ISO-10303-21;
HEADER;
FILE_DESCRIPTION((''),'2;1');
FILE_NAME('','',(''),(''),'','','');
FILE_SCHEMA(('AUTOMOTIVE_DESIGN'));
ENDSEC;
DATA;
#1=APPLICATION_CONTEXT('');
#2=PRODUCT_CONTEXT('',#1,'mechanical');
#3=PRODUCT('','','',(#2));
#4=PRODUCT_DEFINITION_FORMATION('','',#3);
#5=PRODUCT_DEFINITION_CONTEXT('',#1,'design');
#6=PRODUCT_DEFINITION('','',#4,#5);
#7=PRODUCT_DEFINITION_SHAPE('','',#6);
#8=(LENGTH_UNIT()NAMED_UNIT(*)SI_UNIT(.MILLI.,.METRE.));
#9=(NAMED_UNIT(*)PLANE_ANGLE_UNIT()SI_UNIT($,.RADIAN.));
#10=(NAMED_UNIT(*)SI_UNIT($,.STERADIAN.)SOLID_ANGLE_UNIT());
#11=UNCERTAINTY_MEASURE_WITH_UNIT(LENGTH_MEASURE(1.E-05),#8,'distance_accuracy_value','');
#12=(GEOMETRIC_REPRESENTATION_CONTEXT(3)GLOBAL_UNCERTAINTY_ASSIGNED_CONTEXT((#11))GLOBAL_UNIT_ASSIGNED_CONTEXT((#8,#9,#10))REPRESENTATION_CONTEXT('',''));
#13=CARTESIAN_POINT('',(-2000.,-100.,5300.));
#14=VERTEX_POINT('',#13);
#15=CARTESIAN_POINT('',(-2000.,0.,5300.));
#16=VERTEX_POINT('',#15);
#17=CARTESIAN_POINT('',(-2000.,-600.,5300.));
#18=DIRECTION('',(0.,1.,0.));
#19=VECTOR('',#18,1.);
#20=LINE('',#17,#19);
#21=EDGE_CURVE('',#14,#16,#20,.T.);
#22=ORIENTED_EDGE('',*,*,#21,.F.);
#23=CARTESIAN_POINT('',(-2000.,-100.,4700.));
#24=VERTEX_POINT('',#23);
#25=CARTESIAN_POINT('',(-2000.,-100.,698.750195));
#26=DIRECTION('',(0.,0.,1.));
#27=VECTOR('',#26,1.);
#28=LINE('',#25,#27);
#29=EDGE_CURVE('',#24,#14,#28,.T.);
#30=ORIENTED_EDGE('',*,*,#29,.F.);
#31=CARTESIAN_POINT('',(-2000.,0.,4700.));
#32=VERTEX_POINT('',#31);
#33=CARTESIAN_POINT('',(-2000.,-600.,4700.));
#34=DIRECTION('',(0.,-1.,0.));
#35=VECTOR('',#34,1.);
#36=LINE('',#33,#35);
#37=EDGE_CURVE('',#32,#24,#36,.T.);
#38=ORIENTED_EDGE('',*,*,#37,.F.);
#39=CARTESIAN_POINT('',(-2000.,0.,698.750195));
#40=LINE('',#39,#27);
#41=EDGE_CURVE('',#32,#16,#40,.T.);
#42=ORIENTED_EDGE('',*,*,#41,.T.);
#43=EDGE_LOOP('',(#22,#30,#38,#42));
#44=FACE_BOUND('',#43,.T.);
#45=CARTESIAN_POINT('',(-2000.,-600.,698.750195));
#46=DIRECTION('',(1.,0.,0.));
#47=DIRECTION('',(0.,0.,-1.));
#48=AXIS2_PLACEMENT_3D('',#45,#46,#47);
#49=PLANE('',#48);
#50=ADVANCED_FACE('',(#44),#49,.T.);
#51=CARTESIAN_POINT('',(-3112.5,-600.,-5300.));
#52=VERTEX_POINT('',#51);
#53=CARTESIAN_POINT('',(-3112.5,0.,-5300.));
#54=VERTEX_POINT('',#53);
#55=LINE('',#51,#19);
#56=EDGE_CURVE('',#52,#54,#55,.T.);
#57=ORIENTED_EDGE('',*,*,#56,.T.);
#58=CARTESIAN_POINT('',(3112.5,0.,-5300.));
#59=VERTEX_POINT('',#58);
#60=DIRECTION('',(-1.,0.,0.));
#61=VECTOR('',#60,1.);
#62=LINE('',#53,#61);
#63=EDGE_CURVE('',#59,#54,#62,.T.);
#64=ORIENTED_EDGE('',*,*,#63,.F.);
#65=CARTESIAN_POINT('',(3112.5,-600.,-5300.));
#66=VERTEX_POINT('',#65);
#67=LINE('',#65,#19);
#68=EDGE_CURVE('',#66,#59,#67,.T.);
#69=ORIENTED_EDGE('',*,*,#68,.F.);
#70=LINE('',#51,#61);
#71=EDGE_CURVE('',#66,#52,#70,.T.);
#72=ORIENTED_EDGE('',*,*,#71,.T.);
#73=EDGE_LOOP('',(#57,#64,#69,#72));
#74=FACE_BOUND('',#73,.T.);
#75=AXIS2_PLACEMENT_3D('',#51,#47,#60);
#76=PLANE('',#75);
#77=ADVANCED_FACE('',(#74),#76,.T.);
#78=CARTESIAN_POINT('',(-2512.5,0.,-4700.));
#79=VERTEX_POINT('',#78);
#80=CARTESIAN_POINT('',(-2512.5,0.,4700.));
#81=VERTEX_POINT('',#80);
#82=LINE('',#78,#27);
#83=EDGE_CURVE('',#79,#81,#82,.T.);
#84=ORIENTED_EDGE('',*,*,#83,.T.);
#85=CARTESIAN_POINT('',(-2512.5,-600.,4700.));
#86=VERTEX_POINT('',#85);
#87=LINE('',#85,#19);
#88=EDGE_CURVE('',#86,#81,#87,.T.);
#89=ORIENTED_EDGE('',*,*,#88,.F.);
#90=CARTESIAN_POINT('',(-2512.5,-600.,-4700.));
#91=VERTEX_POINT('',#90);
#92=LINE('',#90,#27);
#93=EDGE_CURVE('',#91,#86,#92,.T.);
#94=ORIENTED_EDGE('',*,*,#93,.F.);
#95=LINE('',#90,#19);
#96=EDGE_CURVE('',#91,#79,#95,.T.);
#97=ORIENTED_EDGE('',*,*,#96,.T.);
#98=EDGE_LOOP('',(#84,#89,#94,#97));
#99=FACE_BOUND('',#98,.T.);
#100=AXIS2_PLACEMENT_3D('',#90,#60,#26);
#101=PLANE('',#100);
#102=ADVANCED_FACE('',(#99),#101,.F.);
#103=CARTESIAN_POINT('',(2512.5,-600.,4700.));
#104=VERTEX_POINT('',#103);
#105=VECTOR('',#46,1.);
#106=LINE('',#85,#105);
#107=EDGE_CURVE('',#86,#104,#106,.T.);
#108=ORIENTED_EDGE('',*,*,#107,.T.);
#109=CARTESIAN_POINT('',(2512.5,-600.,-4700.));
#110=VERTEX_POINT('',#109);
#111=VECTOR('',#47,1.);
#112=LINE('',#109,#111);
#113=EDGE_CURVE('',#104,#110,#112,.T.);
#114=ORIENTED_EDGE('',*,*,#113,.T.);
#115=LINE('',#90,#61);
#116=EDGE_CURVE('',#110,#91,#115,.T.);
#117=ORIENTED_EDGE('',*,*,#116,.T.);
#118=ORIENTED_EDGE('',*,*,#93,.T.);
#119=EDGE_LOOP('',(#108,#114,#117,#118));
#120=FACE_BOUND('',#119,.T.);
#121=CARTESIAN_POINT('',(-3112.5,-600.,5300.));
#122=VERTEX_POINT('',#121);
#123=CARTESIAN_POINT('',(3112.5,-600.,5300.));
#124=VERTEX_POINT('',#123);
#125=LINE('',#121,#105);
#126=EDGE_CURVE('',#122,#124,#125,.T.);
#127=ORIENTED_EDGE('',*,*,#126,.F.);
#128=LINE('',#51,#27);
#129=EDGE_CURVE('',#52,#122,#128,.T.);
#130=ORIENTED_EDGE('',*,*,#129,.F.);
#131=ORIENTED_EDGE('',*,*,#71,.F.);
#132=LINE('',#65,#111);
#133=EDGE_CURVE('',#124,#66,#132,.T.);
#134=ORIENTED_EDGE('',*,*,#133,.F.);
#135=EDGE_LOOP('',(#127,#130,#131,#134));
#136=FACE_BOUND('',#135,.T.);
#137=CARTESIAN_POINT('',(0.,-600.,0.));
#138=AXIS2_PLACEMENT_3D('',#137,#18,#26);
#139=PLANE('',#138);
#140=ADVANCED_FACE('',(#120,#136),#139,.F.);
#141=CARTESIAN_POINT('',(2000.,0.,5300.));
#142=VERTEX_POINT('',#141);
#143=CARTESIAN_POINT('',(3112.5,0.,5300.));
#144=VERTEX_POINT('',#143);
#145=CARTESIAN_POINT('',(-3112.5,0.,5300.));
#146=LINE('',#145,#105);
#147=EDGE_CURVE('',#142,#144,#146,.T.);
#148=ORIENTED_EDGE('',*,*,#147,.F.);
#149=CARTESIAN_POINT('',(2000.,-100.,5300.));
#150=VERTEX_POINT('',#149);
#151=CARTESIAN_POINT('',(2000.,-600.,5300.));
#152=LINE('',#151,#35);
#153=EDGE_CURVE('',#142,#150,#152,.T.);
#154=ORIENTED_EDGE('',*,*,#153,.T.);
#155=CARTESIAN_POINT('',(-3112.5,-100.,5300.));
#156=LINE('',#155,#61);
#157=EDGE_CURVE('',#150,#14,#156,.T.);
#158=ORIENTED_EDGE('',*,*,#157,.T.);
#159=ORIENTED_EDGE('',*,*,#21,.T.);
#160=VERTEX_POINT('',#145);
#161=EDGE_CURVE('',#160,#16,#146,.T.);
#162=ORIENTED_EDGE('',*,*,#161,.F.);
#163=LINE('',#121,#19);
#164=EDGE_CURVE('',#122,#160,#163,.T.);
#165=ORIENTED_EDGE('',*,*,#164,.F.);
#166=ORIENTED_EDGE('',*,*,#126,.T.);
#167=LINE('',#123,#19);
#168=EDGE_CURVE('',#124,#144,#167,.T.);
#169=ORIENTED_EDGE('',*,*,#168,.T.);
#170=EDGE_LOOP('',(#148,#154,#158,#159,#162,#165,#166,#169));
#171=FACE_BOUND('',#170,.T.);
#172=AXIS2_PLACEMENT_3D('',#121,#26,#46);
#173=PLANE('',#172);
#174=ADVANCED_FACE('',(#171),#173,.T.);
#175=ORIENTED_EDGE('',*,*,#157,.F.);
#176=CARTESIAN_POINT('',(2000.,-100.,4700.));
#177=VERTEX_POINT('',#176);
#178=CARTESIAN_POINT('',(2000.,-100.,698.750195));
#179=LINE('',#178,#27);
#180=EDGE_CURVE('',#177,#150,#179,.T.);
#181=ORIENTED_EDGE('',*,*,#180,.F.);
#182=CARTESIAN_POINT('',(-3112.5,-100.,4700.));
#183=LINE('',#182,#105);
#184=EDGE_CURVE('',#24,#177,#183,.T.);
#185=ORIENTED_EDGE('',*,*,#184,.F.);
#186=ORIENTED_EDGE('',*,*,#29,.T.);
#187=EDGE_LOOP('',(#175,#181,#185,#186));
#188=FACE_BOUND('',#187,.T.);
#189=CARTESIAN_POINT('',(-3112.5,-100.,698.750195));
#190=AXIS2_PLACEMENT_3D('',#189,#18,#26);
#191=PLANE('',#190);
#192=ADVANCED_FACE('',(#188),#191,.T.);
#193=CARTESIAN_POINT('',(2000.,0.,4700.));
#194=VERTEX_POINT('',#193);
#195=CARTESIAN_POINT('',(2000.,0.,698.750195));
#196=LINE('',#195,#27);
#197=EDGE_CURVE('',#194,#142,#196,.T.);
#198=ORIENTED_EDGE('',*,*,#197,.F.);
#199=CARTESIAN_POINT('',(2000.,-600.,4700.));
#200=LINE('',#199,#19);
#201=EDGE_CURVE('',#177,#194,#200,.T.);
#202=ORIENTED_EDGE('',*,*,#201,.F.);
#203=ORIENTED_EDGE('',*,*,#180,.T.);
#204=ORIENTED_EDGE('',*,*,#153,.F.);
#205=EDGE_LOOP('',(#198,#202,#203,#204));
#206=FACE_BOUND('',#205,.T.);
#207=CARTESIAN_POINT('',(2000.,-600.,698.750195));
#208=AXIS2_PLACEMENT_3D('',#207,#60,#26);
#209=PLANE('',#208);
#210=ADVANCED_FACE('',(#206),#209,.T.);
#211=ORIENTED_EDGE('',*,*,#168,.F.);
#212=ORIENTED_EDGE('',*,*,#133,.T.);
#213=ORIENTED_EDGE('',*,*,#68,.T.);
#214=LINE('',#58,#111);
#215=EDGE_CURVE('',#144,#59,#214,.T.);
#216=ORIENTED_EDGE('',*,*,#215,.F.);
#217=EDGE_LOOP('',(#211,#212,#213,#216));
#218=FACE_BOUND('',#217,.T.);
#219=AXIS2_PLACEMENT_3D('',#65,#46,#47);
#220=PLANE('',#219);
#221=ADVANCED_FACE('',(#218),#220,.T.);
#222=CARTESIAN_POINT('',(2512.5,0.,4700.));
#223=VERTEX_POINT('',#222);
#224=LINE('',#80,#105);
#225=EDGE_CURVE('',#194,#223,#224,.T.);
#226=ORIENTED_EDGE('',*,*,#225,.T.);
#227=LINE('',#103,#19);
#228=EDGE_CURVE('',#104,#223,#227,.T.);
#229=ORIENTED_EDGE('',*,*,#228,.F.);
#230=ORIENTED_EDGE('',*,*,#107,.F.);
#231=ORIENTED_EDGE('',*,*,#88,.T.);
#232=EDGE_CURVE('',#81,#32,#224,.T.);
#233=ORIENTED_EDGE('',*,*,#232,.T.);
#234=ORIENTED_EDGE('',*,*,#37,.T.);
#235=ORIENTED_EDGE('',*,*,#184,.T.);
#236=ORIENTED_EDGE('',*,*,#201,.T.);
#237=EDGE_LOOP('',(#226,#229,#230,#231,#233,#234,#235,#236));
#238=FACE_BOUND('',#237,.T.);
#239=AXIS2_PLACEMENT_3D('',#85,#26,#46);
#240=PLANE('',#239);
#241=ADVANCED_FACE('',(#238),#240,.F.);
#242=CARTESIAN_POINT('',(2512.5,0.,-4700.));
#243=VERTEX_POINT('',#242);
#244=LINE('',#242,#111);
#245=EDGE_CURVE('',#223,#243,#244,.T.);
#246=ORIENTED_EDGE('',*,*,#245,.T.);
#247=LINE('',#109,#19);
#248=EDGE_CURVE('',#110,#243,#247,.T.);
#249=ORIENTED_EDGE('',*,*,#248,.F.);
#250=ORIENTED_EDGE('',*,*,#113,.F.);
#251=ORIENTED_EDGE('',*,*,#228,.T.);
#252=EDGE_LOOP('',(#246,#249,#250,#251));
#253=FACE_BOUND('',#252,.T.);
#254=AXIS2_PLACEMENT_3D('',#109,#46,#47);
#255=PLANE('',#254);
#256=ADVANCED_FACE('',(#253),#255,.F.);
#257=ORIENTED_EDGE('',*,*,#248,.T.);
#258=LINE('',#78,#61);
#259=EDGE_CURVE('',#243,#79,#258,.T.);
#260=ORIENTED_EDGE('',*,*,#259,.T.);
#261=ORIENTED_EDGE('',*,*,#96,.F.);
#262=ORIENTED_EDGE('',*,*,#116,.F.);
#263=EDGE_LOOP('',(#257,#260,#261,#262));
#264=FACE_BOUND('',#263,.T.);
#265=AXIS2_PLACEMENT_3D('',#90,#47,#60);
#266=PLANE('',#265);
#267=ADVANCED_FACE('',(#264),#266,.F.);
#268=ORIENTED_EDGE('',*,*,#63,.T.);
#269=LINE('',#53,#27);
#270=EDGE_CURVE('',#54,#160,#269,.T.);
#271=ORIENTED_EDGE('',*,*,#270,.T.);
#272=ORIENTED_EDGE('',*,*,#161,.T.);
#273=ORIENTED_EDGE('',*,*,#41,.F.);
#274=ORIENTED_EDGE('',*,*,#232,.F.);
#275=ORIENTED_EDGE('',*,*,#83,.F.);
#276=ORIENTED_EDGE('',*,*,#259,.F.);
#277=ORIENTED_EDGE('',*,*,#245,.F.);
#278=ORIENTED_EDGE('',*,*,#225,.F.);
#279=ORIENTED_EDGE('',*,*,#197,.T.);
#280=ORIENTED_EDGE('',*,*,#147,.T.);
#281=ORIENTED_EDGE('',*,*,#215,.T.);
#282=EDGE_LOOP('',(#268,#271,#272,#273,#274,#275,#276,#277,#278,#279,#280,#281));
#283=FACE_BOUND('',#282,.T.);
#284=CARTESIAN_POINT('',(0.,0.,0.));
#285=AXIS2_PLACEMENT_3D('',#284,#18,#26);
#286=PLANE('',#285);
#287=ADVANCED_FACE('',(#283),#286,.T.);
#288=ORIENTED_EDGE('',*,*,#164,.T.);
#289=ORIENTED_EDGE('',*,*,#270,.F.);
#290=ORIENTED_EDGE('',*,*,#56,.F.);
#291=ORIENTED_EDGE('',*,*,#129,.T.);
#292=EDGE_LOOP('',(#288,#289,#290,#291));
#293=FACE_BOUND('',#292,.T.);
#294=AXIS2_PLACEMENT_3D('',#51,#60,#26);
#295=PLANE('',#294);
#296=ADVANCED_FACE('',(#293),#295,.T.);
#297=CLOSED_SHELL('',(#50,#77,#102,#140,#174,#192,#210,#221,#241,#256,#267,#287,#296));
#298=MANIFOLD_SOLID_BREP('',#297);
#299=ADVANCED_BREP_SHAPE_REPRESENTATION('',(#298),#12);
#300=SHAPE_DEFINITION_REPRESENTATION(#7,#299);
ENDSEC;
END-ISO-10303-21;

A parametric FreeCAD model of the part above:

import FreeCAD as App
import Part
import Sketcher

V = App.Vector


def add_polygon(sketch, points):
    """Adds a closed chain of lines whose ends are joined by coincident constraints."""
    first, n = sketch.GeometryCount, len(points)
    for a, b in zip(points, points[1:] + points[:1]):
        sketch.addGeometry(Part.LineSegment(App.Vector(*a, 0), App.Vector(*b, 0)), False)
    for i in range(n):
        sketch.addConstraint(Sketcher.Constraint("Coincident", first + i, 2, first + (i + 1) % n, 1))

doc = App.newDocument("Part")
body = doc.addObject("PartDesign::Body", "Body")

# Sketch on XZ plane
sketch1 = body.newObject("Sketcher::SketchObject", "Sketch")
sketch1.AttachmentSupport = (doc.getObject("XZ_Plane"), [""])
sketch1.MapMode = "FlatFace"
add_polygon(sketch1, [(-3112.5, -5300), (-3112.5, 5300), (3112.5, 5300), (3112.5, -5300)])  # lines 0-3
add_polygon(sketch1, [(2512.5, 4700), (-2512.5, 4700), (-2512.5, -4700), (2512.5, -4700)])  # lines 4-7
sketch1.addConstraint([
    Sketcher.Constraint("Vertical", 0),
    Sketcher.Constraint("Horizontal", 1),
    Sketcher.Constraint("Vertical", 2),
    Sketcher.Constraint("Horizontal", 3),
    Sketcher.Constraint("Horizontal", 4),
    Sketcher.Constraint("Vertical", 5),
    Sketcher.Constraint("Horizontal", 6),
    Sketcher.Constraint("Vertical", 7),
    Sketcher.Constraint("Symmetric", 0, 2, 2, 2, -1, 1),
    Sketcher.Constraint("Symmetric", 4, 2, 6, 2, -1, 1),
    Sketcher.Constraint("DistanceX", 1, 1, 1, 2, 6225.0),
    Sketcher.Constraint("DistanceX", 4, 2, 4, 1, 5025.0),
    Sketcher.Constraint("DistanceY", 0, 1, 0, 2, 10600.0),
    Sketcher.Constraint("DistanceY", 5, 2, 5, 1, 9400.0),
])
pad1 = body.newObject("PartDesign::Pad", "Pad")
pad1.Profile = sketch1
pad1.Length = 600

# Sketch on XY plane
sketch2 = body.newObject("Sketcher::SketchObject", "Sketch001")
sketch2.AttachmentSupport = (doc.getObject("XY_Plane"), [""])
sketch2.MapMode = "FlatFace"
sketch2.AttachmentOffset = App.Placement(V(0, 0, 5300), App.Rotation())
add_polygon(sketch2, [(-2000, 0), (-2000, -100), (2000, -100), (2000, 0)])  # lines 0-3
sketch2.addConstraint([
    Sketcher.Constraint("Vertical", 0),
    Sketcher.Constraint("Horizontal", 1),
    Sketcher.Constraint("Vertical", 2),
    Sketcher.Constraint("Horizontal", 3),
    Sketcher.Constraint("Symmetric", 2, 2, 3, 2, -1, 1),
    Sketcher.Constraint("DistanceX", 1, 1, 1, 2, 4000.0),
    Sketcher.Constraint("DistanceY", 0, 2, 0, 1, 100.0),
])
pocket1 = body.newObject("PartDesign::Pocket", "Pocket")
pocket1.Profile = sketch2
pocket1.Length = 600

doc.recompute()
